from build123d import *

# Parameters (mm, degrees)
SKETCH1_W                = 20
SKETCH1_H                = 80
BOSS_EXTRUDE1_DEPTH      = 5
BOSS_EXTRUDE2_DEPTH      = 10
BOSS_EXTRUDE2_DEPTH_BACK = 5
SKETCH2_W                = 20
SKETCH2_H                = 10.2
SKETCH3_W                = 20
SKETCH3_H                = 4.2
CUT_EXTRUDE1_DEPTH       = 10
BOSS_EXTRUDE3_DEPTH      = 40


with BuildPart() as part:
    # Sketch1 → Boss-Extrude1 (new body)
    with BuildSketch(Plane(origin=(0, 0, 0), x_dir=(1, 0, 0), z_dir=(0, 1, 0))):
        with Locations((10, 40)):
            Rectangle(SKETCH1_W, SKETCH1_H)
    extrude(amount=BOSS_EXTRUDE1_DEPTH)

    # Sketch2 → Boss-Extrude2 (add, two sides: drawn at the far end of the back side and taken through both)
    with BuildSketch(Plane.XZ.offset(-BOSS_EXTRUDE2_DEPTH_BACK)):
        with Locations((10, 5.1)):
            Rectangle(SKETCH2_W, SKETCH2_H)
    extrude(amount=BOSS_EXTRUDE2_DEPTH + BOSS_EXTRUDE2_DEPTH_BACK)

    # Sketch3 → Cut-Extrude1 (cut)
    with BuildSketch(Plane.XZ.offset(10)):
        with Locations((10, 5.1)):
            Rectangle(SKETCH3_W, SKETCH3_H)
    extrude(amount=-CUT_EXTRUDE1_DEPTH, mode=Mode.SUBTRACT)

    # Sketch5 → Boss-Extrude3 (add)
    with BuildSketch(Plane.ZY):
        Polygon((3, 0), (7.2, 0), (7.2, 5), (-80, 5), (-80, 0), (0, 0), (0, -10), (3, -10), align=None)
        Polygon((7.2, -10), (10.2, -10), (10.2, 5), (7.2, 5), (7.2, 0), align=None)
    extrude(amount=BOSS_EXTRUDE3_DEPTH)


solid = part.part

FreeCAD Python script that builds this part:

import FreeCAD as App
import Part
import Sketcher
from FreeCAD import Vector


def add_polygon(sketch, points):
    """Adds a closed chain of lines whose ends are joined by coincident constraints."""
    first, n = sketch.GeometryCount, len(points)
    for a, b in zip(points, points[1:] + points[:1]):
        sketch.addGeometry(Part.LineSegment(App.Vector(*a, 0), App.Vector(*b, 0)), False)
    for i in range(n):
        sketch.addConstraint(Sketcher.Constraint("Coincident", first + i, 2, first + (i + 1) % n, 1))

doc = App.newDocument("Part")
body = doc.addObject("PartDesign::Body", "Body")

# Sketch on XZ plane
sketch1 = body.newObject("Sketcher::SketchObject", "Sketch")
sketch1.AttachmentSupport = (doc.getObject("XZ_Plane"), [""])
sketch1.MapMode = "FlatFace"
add_polygon(sketch1, [(0, -80), (0, 0), (20, 0), (20, -80)])  # lines 0-3
sketch1.addConstraint([
    Sketcher.Constraint("Vertical", 0),
    Sketcher.Constraint("Horizontal", 1),
    Sketcher.Constraint("Vertical", 2),
    Sketcher.Constraint("Horizontal", 3),
    Sketcher.Constraint("Coincident", 0, 2, -1, 1),
    Sketcher.Constraint("DistanceX", 1, 1, 1, 2, 20.0),
    Sketcher.Constraint("DistanceY", 0, 1, 0, 2, 80.0),
])
pad1 = body.newObject("PartDesign::Pad", "Pad")
pad1.Profile = sketch1
pad1.Length = 5
pad1.Reversed = True

# Sketch on XZ plane
sketch2 = body.newObject("Sketcher::SketchObject", "Sketch001")
sketch2.AttachmentSupport = (doc.getObject("XZ_Plane"), [""])
sketch2.MapMode = "FlatFace"
add_polygon(sketch2, [(0, 10.2), (0, 0), (20, 0), (20, 10.2)])  # lines 0-3
sketch2.addConstraint([
    Sketcher.Constraint("Vertical", 0),
    Sketcher.Constraint("Horizontal", 1),
    Sketcher.Constraint("Vertical", 2),
    Sketcher.Constraint("Horizontal", 3),
    Sketcher.Constraint("Coincident", 0, 2, -1, 1),
    Sketcher.Constraint("DistanceX", 1, 1, 1, 2, 20.0),
    Sketcher.Constraint("DistanceY", 0, 2, 0, 1, 10.2),
])
pad2 = body.newObject("PartDesign::Pad", "Pad001")
pad2.Profile = sketch2
pad2.Type = "TwoLengths"
pad2.Length = 10
pad2.Length2 = 5

# Sketch on XZ plane
sketch3 = body.newObject("Sketcher::SketchObject", "Sketch002")
sketch3.AttachmentSupport = (doc.getObject("XZ_Plane"), [""])
sketch3.MapMode = "FlatFace"
sketch3.AttachmentOffset = App.Placement(Vector(0, 0, 10), App.Rotation())
add_polygon(sketch3, [(0, 7.2), (0, 3), (20, 3), (20, 7.2)])  # lines 0-3
sketch3.addConstraint([
    Sketcher.Constraint("Vertical", 0),
    Sketcher.Constraint("Horizontal", 1),
    Sketcher.Constraint("Vertical", 2),
    Sketcher.Constraint("Horizontal", 3),
    Sketcher.Constraint("PointOnObject", 0, 2, -2),
    Sketcher.Constraint("DistanceX", 1, 1, 1, 2, 20.0),
    Sketcher.Constraint("DistanceY", 0, 2, 0, 1, 4.2),
    Sketcher.Constraint("DistanceY", -1, 1, 0, 2, 3.0),
])
pocket1 = body.newObject("PartDesign::Pocket", "Pocket")
pocket1.Profile = sketch3
pocket1.Length = 10

# Sketch on YZ plane
sketch4 = body.newObject("Sketcher::SketchObject", "Sketch003")
sketch4.AttachmentSupport = (doc.getObject("YZ_Plane"), [""])
sketch4.MapMode = "FlatFace"
add_polygon(sketch4, [(0, 3), (0, 7.2), (-10, 7.2), (-10, 10.2), (5, 10.2), (5, -80), (0, -80), (0, 0), (-10, 0), (-10, 3)])  # lines 0-9
sketch4.addConstraint([
    Sketcher.Constraint("Vertical", 0),
    Sketcher.Constraint("Horizontal", 1),
    Sketcher.Constraint("Vertical", 2),
    Sketcher.Constraint("Horizontal", 3),
    Sketcher.Constraint("Vertical", 4),
    Sketcher.Constraint("Horizontal", 5),
    Sketcher.Constraint("Vertical", 6),
    Sketcher.Constraint("Horizontal", 7),
    Sketcher.Constraint("Vertical", 8),
    Sketcher.Constraint("Horizontal", 9),
    Sketcher.Constraint("Coincident", 6, 2, -1, 1),
    Sketcher.Constraint("PointOnObject", 0, 2, -2),
    Sketcher.Constraint("Vertical", 2, 2, 7, 2),
    Sketcher.Constraint("Equal", 2, 8),
    Sketcher.Constraint("DistanceX", 1, 2, 1, 1, 10.0),
    Sketcher.Constraint("DistanceX", 3, 1, 3, 2, 15.0),
    Sketcher.Constraint("DistanceY", 2, 1, 2, 2, 3.0),
    Sketcher.Constraint("DistanceY", 6, 1, 6, 2, 80.0),
    Sketcher.Constraint("DistanceY", 0, 1, 0, 2, 4.2),
])
pad3 = body.newObject("PartDesign::Pad", "Pad002")
pad3.Profile = sketch4
pad3.Length = 40
pad3.Reversed = True

doc.recompute()
